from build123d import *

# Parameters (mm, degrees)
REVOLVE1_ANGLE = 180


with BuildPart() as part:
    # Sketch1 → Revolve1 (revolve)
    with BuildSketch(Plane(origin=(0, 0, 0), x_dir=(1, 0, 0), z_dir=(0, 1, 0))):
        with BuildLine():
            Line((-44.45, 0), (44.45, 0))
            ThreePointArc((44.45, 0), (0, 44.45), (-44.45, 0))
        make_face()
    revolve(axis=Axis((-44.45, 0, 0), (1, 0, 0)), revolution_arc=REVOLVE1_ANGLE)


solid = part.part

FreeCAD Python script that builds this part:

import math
import FreeCAD as App
import Part
import Sketcher
Q = App.Units.Quantity

doc = App.newDocument("Part")
body = doc.addObject("PartDesign::Body", "Body")

sketch1 = body.newObject("Sketcher::SketchObject", "Sketch")
sketch1.AttachmentSupport = (doc.getObject("XZ_Plane"), [""])
sketch1.MapMode = "FlatFace"
sketch1.addGeometry([
    Part.LineSegment(App.Vector(-44.45, 0, 0), App.Vector(44.45, 0, 0)),
    Part.ArcOfCircle(Part.Circle(App.Vector(0, 0, 0), App.Vector(0, 0, 1), 44.45), math.radians(180), math.radians(360)),
], False)
sketch1.addConstraint([
    Sketcher.Constraint("Coincident", 0, 1, 1, 1),
    Sketcher.Constraint("Coincident", 1, 2, 0, 2),
    Sketcher.Constraint("Horizontal", 0),
    Sketcher.Constraint("Coincident", 1, 3, -1, 1),
    Sketcher.Constraint("PointOnObject", 0, 1, -1),
    Sketcher.Constraint("Radius", 1, Q("1.75 in")),
])
revolution = body.newObject("PartDesign::Revolution", "Revolution")
revolution.Profile = sketch1
revolution.ReferenceAxis = (sketch1, ["H_Axis"])
revolution.Angle = 180

doc.recompute()
